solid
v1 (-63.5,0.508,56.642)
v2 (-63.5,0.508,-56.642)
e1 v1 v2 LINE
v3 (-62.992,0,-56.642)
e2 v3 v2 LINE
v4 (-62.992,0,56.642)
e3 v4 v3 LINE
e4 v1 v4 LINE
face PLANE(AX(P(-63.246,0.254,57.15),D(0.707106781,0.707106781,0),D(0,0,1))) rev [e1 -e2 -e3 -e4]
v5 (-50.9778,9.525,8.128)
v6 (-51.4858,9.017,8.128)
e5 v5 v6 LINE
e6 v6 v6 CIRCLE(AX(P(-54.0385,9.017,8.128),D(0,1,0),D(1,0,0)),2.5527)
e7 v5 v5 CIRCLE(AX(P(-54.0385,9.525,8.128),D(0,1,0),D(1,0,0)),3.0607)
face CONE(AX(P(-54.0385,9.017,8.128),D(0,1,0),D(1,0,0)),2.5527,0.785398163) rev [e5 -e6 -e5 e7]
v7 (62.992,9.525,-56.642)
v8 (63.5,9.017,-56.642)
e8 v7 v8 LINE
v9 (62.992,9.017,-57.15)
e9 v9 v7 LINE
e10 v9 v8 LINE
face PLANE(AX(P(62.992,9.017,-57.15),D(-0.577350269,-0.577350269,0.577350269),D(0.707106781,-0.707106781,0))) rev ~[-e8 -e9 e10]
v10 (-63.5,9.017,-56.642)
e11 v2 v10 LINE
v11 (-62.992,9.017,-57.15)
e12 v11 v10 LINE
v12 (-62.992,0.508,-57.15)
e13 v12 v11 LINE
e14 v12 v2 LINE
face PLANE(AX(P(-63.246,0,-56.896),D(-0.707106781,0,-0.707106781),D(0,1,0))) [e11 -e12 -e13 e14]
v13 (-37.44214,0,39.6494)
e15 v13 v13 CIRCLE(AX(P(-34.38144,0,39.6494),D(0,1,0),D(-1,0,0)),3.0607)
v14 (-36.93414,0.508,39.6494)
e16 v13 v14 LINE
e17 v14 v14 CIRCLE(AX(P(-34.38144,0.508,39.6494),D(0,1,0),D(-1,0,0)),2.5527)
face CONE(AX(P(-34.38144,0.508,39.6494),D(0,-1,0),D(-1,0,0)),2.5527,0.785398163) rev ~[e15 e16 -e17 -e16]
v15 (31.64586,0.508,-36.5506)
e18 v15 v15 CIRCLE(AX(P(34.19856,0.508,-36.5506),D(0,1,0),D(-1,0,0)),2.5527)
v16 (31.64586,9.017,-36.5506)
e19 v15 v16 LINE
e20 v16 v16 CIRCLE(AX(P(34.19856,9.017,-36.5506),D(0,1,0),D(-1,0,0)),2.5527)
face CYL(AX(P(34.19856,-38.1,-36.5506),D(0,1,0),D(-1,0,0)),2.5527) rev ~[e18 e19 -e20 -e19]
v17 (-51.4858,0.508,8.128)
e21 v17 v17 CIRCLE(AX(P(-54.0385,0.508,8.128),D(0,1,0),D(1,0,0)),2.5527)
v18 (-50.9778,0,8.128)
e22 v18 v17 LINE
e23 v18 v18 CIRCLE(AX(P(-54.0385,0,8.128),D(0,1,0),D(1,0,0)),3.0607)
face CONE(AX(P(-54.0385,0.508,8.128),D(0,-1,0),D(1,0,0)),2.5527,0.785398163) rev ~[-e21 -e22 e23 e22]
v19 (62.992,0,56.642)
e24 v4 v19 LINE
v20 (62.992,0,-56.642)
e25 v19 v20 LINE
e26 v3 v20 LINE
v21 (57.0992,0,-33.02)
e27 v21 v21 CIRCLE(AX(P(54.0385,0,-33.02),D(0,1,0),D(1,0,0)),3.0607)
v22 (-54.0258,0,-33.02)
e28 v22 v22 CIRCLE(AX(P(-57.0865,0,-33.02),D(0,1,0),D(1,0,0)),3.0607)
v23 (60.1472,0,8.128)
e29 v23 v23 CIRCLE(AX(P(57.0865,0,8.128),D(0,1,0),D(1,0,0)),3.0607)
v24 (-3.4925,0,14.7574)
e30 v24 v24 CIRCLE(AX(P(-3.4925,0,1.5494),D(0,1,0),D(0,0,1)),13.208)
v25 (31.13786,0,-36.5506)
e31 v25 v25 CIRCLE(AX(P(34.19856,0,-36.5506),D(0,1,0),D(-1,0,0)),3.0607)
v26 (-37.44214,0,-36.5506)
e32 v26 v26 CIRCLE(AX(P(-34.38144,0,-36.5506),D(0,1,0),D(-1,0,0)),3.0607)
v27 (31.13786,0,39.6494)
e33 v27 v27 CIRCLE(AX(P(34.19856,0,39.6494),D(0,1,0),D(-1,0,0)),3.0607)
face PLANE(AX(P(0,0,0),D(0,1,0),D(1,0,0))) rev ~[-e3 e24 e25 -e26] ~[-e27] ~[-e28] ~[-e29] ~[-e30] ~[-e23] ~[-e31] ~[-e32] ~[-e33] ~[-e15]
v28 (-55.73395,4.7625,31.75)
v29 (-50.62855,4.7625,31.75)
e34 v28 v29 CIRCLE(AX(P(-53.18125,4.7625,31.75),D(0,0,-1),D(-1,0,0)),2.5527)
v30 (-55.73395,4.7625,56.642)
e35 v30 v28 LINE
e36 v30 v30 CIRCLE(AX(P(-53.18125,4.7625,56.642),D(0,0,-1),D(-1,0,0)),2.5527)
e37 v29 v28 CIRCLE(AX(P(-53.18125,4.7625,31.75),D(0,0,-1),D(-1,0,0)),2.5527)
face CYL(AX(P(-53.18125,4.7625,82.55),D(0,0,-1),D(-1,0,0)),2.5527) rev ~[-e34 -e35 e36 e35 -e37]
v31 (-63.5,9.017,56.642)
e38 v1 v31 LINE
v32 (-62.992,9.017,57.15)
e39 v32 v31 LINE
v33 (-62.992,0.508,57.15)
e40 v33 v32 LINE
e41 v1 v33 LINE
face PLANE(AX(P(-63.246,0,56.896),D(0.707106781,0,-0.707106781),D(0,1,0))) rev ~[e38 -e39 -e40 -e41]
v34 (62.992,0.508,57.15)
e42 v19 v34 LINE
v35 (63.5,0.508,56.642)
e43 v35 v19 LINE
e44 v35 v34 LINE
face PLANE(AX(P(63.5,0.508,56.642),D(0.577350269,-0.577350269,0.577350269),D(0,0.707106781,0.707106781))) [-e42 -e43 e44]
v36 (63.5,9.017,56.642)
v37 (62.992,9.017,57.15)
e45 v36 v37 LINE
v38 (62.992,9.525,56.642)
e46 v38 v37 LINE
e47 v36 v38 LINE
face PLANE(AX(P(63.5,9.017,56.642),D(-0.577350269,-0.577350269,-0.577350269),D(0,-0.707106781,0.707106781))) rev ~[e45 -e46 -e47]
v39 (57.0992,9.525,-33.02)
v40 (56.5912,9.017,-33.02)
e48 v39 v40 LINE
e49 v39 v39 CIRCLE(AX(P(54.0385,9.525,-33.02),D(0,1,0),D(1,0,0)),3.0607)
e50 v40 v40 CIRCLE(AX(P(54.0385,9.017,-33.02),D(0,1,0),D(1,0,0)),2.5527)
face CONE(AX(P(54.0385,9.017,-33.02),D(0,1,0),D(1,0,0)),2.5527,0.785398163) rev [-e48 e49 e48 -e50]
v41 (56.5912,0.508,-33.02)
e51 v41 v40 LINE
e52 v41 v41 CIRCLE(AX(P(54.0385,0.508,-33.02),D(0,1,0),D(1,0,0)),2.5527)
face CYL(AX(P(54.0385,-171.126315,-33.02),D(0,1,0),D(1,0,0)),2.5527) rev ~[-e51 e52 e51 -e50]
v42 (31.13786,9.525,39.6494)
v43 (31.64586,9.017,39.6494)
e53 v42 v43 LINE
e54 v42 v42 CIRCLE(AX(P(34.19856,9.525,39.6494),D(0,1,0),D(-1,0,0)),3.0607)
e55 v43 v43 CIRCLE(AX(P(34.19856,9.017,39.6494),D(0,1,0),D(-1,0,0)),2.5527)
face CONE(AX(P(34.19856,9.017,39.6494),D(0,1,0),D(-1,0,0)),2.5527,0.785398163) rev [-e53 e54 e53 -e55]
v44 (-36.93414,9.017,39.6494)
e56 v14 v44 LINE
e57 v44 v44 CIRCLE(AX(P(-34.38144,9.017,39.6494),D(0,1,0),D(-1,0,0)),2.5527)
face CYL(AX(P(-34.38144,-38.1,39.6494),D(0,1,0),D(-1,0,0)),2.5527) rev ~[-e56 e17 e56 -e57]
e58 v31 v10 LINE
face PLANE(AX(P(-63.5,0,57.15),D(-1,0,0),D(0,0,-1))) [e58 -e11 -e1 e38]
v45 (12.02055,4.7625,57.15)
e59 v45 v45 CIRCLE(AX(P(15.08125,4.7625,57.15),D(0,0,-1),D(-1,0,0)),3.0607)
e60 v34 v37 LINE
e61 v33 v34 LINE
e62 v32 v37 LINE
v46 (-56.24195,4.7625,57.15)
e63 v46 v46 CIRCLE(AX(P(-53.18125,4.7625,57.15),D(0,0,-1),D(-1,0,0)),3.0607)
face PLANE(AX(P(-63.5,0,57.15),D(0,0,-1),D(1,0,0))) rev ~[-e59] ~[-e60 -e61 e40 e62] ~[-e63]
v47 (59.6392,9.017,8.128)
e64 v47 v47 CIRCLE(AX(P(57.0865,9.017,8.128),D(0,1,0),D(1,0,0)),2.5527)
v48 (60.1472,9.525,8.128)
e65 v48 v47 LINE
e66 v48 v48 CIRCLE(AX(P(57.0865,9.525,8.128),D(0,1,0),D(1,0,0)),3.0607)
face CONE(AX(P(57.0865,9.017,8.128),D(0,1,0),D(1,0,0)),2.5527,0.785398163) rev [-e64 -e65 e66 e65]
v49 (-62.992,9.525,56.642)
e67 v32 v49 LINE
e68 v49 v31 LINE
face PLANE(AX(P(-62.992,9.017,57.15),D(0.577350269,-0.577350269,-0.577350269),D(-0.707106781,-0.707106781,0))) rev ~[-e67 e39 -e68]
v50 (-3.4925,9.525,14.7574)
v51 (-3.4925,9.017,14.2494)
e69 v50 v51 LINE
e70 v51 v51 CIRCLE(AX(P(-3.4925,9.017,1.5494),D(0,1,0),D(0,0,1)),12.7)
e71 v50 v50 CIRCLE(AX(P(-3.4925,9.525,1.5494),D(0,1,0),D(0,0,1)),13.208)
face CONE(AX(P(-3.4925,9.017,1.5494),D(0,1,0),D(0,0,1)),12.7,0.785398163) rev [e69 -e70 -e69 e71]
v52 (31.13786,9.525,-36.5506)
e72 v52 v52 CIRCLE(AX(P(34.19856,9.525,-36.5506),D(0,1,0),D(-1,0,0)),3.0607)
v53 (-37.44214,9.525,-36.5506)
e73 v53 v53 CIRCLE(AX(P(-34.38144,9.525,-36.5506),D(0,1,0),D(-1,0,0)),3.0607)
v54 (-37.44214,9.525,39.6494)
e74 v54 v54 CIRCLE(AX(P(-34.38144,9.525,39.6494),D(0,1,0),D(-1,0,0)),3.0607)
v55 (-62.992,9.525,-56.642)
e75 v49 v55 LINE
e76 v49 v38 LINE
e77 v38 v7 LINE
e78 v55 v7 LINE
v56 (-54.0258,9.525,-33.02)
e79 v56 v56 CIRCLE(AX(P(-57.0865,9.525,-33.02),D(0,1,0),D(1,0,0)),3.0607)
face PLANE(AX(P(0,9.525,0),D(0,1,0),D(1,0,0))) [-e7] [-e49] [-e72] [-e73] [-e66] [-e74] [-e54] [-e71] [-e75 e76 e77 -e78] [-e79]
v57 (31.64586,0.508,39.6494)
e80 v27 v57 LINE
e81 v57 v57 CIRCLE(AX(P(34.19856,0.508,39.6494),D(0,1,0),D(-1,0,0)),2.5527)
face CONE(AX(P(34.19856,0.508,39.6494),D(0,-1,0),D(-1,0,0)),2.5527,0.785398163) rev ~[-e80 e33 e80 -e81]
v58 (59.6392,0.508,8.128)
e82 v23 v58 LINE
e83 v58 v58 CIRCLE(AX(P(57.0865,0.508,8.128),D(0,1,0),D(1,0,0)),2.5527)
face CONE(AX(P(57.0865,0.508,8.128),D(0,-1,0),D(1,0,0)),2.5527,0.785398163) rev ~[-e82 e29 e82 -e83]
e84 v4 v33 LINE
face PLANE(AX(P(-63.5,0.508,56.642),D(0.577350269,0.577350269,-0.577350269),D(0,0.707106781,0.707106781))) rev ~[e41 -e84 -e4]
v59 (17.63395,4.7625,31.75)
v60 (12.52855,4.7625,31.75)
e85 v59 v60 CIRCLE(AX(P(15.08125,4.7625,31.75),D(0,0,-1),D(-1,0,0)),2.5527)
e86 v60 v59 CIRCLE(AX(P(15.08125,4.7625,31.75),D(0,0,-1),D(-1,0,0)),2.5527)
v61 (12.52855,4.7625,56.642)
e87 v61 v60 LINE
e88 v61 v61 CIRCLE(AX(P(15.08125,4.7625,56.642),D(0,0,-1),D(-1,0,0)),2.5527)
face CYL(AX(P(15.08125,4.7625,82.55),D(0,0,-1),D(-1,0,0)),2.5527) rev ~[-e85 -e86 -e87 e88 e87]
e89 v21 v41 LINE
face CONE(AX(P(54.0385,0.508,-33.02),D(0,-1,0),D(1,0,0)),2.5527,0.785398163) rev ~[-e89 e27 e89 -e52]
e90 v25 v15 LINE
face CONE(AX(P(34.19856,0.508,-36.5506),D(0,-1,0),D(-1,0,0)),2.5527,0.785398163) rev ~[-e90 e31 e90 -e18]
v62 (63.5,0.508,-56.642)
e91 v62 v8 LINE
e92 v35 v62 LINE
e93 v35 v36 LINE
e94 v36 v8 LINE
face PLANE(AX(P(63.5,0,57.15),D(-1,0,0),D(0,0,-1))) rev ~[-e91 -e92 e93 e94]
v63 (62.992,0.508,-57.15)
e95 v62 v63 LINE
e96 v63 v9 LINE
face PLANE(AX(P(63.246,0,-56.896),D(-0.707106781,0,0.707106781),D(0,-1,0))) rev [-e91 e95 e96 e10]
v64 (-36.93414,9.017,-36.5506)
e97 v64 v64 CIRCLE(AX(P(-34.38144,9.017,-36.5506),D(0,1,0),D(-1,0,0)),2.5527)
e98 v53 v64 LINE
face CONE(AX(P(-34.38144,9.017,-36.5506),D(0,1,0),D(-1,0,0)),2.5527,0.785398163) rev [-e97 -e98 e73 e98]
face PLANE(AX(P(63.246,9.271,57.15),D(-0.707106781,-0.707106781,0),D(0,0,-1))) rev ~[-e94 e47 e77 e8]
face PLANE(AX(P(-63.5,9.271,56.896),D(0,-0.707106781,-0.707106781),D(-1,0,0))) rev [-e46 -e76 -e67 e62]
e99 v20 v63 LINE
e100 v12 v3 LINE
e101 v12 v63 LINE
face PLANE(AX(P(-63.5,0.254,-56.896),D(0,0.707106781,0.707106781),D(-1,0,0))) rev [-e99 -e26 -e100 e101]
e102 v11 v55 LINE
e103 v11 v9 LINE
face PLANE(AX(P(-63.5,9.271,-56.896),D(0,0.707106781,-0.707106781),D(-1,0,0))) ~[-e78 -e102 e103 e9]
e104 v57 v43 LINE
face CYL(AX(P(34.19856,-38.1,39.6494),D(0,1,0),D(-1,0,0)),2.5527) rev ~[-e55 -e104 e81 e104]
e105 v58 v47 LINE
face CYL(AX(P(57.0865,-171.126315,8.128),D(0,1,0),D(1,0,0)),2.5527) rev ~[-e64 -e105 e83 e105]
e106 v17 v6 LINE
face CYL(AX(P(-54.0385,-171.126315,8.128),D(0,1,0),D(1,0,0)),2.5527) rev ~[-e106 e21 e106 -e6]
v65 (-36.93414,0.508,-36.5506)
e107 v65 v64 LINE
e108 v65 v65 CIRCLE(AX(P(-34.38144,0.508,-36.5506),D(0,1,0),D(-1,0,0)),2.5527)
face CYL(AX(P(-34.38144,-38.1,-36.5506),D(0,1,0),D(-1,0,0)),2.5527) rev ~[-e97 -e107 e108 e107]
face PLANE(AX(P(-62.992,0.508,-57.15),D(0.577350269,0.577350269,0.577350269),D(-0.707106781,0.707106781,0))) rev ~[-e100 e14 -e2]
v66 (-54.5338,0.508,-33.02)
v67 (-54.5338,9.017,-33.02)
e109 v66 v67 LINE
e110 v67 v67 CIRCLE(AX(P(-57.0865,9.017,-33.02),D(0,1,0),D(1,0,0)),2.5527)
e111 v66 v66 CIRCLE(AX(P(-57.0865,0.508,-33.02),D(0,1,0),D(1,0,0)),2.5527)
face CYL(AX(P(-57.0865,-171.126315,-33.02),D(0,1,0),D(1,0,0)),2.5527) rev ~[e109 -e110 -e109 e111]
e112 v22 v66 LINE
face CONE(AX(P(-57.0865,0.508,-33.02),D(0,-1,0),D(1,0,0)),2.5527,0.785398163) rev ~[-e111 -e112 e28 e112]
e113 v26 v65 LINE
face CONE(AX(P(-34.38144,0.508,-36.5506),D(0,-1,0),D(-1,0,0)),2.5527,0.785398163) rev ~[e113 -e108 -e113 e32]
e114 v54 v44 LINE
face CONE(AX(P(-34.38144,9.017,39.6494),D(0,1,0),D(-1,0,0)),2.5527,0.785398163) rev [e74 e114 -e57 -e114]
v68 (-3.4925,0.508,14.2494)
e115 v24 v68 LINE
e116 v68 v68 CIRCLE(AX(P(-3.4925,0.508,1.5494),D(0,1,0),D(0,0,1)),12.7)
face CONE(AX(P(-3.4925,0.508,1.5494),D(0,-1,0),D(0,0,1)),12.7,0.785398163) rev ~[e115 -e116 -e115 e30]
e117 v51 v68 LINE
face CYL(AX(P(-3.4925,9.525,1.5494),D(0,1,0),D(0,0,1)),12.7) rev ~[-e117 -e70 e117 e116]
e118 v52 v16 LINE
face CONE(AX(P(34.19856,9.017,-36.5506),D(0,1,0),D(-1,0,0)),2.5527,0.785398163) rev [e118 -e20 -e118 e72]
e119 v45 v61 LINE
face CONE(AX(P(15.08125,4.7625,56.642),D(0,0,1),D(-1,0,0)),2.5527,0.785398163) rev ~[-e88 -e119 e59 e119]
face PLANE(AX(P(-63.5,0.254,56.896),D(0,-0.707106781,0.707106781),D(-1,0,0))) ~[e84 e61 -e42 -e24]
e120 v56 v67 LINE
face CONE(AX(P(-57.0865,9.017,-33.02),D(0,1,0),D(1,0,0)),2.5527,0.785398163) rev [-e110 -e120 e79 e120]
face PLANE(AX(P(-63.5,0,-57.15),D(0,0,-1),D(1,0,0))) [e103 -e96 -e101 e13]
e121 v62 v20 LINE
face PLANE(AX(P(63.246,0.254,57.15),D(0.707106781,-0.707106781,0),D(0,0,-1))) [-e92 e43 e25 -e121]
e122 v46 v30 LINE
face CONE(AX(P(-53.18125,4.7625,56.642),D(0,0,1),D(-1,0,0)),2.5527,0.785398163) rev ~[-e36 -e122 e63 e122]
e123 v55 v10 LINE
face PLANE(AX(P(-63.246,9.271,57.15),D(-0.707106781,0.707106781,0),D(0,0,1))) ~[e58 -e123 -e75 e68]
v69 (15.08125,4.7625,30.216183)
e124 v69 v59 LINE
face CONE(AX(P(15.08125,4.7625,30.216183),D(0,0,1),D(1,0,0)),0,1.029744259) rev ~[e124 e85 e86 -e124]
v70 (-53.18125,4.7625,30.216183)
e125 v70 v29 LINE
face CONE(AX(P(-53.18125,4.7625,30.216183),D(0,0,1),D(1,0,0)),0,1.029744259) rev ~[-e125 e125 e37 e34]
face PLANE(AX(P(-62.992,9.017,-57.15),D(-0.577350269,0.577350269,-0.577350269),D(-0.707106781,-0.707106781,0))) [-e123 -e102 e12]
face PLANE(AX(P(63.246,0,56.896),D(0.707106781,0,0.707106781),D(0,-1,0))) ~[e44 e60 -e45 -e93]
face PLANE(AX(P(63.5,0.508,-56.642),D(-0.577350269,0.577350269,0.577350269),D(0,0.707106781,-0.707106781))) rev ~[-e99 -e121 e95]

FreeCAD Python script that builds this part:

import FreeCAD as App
import Part
import Sketcher

V = App.Vector
Q = App.Units.Quantity


def edges_at(feature, points):
    """Names of the edges that pass closest to the given points."""
    edges = feature.Shape.Edges
    near = lambda p: min(range(len(edges)), key=lambda i: edges[i].distToShape(Part.Vertex(*p))[0])
    return sorted({f"Edge{near(p) + 1}" for p in points})


def add_polygon(sketch, points):
    """Adds a closed chain of lines whose ends are joined by coincident constraints."""
    first, n = sketch.GeometryCount, len(points)
    for a, b in zip(points, points[1:] + points[:1]):
        sketch.addGeometry(Part.LineSegment(App.Vector(*a, 0), App.Vector(*b, 0)), False)
    for i in range(n):
        sketch.addConstraint(Sketcher.Constraint("Coincident", first + i, 2, first + (i + 1) % n, 1))

doc = App.newDocument("Part")
body = doc.addObject("PartDesign::Body", "Body")

sketch1 = body.newObject("Sketcher::SketchObject", "Sketch")
sketch1.AttachmentSupport = (doc.getObject("XZ_Plane"), [""])
sketch1.MapMode = "FlatFace"
add_polygon(sketch1, [(-63.5, -57.15), (-63.5, 57.15), (63.5, 57.15), (63.5, -57.15)])
sketch1.addConstraint(Sketcher.Constraint("Vertical", 0))
sketch1.addConstraint(Sketcher.Constraint("Horizontal", 1))
sketch1.addConstraint(Sketcher.Constraint("Vertical", 2))
sketch1.addConstraint(Sketcher.Constraint("Horizontal", 3))
sketch1.addConstraint(Sketcher.Constraint("Symmetric", 0, 2, 2, 2, -1, 1))
sketch1.addConstraint(Sketcher.Constraint("DistanceX", 1, 1, 1, 2, Q("5 in")))
sketch1.addConstraint(Sketcher.Constraint("DistanceY", 0, 1, 0, 2, Q("4.5 in")))
pad1 = body.newObject("PartDesign::Pad", "Pad")
pad1.Profile = sketch1
pad1.Length = Q("0.375 in")
pad1.Reversed = True

sketch2 = body.newObject("Sketcher::SketchObject", "Sketch001")
sketch2.AttachmentSupport = (doc.getObject("XZ_Plane"), [""])
sketch2.MapMode = "FlatFace"
sketch2.AttachmentOffset = App.Placement(V(0, 0, -0.375 * 25.4), App.Rotation())
sketch2.addGeometry(Part.Circle(V(-3.4925, 1.5494, 0), V(0, 0, 1), 12.7), False)
sketch2.addConstraint(Sketcher.Constraint("Diameter", 0, Q("1 in")))
sketch2.addConstraint(Sketcher.Constraint("DistanceY", -1, 1, 0, 3, Q("0.061 in")))
sketch2.addConstraint(Sketcher.Constraint("DistanceX", 0, 3, -1, 1, Q("0.1375 in")))
pocket1 = body.newObject("PartDesign::Pocket", "Pocket")
pocket1.Profile = sketch2
pocket1.Type = "ThroughAll"
pocket1.Reversed = True

sketch3 = body.newObject("Sketcher::SketchObject", "Sketch002")
sketch3.AttachmentSupport = (doc.getObject("XZ_Plane"), [""])
sketch3.MapMode = "FlatFace"
sketch3.addGeometry(Part.Circle(V(-34.38144, -36.5506, 0), V(0, 0, 1), 2.5527), False)
sketch3.addGeometry(Part.Circle(V(34.19856, 39.6494, 0), V(0, 0, 1), 2.5527), False)
sketch3.addGeometry(Part.Circle(V(-34.38144, 39.6494, 0), V(0, 0, 1), 2.5527), False)
sketch3.addGeometry(Part.Circle(V(34.19856, -36.5506, 0), V(0, 0, 1), 2.5527), False)
sketch3.addConstraint(Sketcher.Constraint("Equal", 0, 1))
sketch3.addConstraint(Sketcher.Constraint("Equal", 1, 2))
sketch3.addConstraint(Sketcher.Constraint("Equal", 2, 3))
sketch3.addConstraint(Sketcher.Constraint("Horizontal", 1, 3, 2, 3))
sketch3.addConstraint(Sketcher.Constraint("Horizontal", 0, 3, 3, 3))
sketch3.addConstraint(Sketcher.Constraint("Vertical", 0, 3, 2, 3))
sketch3.addConstraint(Sketcher.Constraint("Vertical", 1, 3, 3, 3))
sketch3.addConstraint(Sketcher.Constraint("Diameter", 0, Q("0.201 in")))
sketch3.addConstraint(Sketcher.Constraint("DistanceY", 0, 3, 1, 3, Q("3 in")))
sketch3.addConstraint(Sketcher.Constraint("DistanceX", 0, 3, 1, 3, Q("2.7 in")))
sketch3.addConstraint(Sketcher.Constraint("DistanceY", 0, 3, -1, 1, Q("1.439 in")))
sketch3.addConstraint(Sketcher.Constraint("DistanceX", 0, 3, -1, 1, Q("1.3536 in")))
doc.recompute()
hole = body.newObject("PartDesign::Hole", "Hole")
hole.Profile = sketch3
hole.ThreadType = "None"
hole.Diameter = Q("0.201 in")
hole.DepthType = "Dimension"
hole.Depth = Q("1.5 in")
hole.DrillPoint = "Angled"
hole.DrillPointAngle = 118

sketch4 = body.newObject("Sketcher::SketchObject", "Sketch003")
sketch4.AttachmentSupport = (doc.getObject("XZ_Plane"), [""])
sketch4.MapMode = "FlatFace"
sketch4.addGeometry(Part.Circle(V(54.0385, -33.02, 0), V(0, 0, 1), 2.5527), False)
sketch4.addGeometry(Part.Circle(V(57.0865, 8.128, 0), V(0, 0, 1), 2.5527), False)
sketch4.addGeometry(Part.Circle(V(-57.0865, -33.02, 0), V(0, 0, 1), 2.5527), False)
sketch4.addGeometry(Part.Circle(V(-54.0385, 8.128, 0), V(0, 0, 1), 2.5527), False)
sketch4.addConstraint(Sketcher.Constraint("Equal", 0, 1))
sketch4.addConstraint(Sketcher.Constraint("Equal", 1, 2))
sketch4.addConstraint(Sketcher.Constraint("Equal", 2, 3))
sketch4.addConstraint(Sketcher.Constraint("Horizontal", 0, 3, 2, 3))
sketch4.addConstraint(Sketcher.Constraint("Horizontal", 1, 3, 3, 3))
sketch4.addConstraint(Sketcher.Constraint("Diameter", 0, Q("0.201 in")))
sketch4.addConstraint(Sketcher.Constraint("DistanceY", 0, 3, -1, 1, Q("1.3 in")))
sketch4.addConstraint(Sketcher.Constraint("DistanceY", -1, 1, 1, 3, Q("0.32 in")))
sketch4.addConstraint(Sketcher.Constraint("DistanceX", 0, 3, 1, 3, Q("0.12 in")))
sketch4.addConstraint(Sketcher.Constraint("DistanceX", 2, 3, 3, 3, Q("0.12 in")))
sketch4.addConstraint(Sketcher.Constraint("DistanceX", 2, 3, 0, 3, Q("4.375 in")))
sketch4.addConstraint(Sketcher.Constraint("DistanceX", -1, 1, 0, 3, Q("2.1275 in")))
doc.recompute()
hole2 = body.newObject("PartDesign::Hole", "Hole001")
hole2.Profile = sketch4
hole2.ThreadType = "None"
hole2.Diameter = Q("0.201 in")
hole2.DepthType = "ThroughAll"

sketch5 = body.newObject("Sketcher::SketchObject", "Sketch004")
sketch5.AttachmentSupport = (doc.getObject("XY_Plane"), [""])
sketch5.MapMode = "FlatFace"
sketch5.AttachmentOffset = App.Placement(V(0, 0, 2.25 * 25.4), App.Rotation())
sketch5.addGeometry(Part.Circle(V(-53.18125, 4.7625, 0), V(0, 0, 1), 2.5527), False)
sketch5.addGeometry(Part.Circle(V(15.08125, 4.7625, 0), V(0, 0, 1), 2.5527), False)
sketch5.addConstraint(Sketcher.Constraint("Equal", 0, 1))
sketch5.addConstraint(Sketcher.Constraint("Horizontal", 0, 3, 1, 3))
sketch5.addConstraint(Sketcher.Constraint("Diameter", 0, Q("0.201 in")))
sketch5.addConstraint(Sketcher.Constraint("DistanceX", 0, 3, -1, 1, Q("2.09375 in")))
sketch5.addConstraint(Sketcher.Constraint("DistanceY", -1, 1, 0, 3, Q("0.1875 in")))
sketch5.addConstraint(Sketcher.Constraint("DistanceX", -1, 1, 1, 3, Q("0.59375 in")))
doc.recompute()
hole3 = body.newObject("PartDesign::Hole", "Hole002")
hole3.Profile = sketch5
hole3.ThreadType = "None"
hole3.Diameter = Q("0.201 in")
hole3.DepthType = "Dimension"
hole3.Depth = Q("1 in")
hole3.DrillPoint = "Angled"
hole3.DrillPointAngle = 118
doc.recompute()

chamfer = body.newObject("PartDesign::Chamfer", "Chamfer")
chamfer.Base = (hole3, edges_at(hole3, [
    (-63.5, 9.525, 0),
    (0, 9.525, 57.15),
    (-3.493, 0, -11.151),
    (-3.493, 9.525, -11.151),
    (36.751, 9.525, -36.551),
    (36.751, 0, -36.551),
    (-31.829, 9.525, 39.649),
    (-31.829, 0, 39.649),
    (36.751, 9.525, 39.649),
    (36.751, 0, 39.649),
    (-31.829, 9.525, -36.551),
    (-31.829, 0, -36.551),
    (63.5, 9.525, 0),
    (-56.591, 0, 8.128),
    (-56.591, 9.525, 8.128),
    (0, 0, 57.15),
    (-59.639, 0, -33.02),
    (-59.639, 9.525, -33.02),
    (-63.5, 0, 0),
    (0, 0, -57.15),
    (54.534, 0, 8.128),
    (54.534, 9.525, 8.128),
    (63.5, 0, 0),
    (51.486, 0, -33.02),
    (51.486, 9.525, -33.02),
    (17.634, 4.763, 57.15),
    (-50.629, 4.763, 57.15),
    (0, 9.525, -57.15),
    (63.5, 4.763, 57.15),
    (-63.5, 4.763, 57.15),
    (-63.5, 4.763, -57.15),
    (63.5, 4.763, -57.15),
]))
chamfer.Size = Q("0.02 in")

doc.recompute()
